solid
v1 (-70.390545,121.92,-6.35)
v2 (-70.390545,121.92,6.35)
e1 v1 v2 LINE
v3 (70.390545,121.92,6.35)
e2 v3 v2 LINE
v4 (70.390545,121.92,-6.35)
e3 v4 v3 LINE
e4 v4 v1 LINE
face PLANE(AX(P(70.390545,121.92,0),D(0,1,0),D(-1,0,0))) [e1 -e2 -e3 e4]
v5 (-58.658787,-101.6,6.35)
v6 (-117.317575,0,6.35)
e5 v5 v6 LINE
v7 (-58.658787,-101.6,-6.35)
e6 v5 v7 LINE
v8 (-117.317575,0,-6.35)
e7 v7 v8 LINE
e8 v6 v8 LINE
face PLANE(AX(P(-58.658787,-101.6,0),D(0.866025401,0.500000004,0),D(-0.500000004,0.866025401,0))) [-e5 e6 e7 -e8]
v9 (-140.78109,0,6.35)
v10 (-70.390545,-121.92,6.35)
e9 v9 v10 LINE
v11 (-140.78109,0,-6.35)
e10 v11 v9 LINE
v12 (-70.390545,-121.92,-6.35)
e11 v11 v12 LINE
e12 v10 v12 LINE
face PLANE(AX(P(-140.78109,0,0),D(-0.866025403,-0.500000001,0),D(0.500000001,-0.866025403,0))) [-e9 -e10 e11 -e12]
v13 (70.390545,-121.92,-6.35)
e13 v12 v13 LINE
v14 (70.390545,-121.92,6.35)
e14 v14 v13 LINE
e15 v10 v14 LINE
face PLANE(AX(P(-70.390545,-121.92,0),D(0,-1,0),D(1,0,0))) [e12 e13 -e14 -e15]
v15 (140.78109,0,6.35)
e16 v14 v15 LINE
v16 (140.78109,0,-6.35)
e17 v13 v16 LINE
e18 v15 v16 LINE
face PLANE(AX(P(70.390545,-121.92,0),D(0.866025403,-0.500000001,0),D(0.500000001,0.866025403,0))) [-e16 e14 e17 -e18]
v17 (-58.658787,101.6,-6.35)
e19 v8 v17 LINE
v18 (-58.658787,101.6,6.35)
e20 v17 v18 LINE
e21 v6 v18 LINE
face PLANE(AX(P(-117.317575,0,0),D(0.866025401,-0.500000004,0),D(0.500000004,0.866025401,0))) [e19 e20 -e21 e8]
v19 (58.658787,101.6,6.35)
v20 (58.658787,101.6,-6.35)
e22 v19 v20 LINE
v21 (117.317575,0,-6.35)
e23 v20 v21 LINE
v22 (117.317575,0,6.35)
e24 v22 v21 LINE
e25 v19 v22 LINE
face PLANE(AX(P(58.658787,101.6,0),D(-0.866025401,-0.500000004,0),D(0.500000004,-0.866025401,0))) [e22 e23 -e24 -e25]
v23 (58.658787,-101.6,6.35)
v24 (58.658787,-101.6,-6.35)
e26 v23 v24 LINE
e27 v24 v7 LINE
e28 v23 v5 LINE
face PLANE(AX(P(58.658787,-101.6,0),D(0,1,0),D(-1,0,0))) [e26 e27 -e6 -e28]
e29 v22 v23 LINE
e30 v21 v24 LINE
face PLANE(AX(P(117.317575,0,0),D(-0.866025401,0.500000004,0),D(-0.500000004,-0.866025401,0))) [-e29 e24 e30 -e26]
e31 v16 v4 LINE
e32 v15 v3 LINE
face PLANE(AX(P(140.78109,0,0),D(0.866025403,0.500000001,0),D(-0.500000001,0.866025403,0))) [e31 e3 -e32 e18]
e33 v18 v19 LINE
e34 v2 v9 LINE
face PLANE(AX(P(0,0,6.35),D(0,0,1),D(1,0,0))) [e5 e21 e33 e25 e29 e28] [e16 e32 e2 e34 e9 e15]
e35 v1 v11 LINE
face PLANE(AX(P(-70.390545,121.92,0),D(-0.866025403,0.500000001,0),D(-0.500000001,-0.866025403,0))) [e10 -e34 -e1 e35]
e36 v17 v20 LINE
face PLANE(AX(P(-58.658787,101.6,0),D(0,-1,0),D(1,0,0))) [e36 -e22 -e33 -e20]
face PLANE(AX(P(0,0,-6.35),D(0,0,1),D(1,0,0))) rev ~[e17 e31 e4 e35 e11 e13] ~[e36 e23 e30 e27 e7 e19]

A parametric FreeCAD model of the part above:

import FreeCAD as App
import Part
import Sketcher
from FreeCAD import Vector
Q = App.Units.Quantity


def add_polygon(sketch, points):
    """Adds a closed chain of lines whose ends are joined by coincident constraints."""
    first, n = sketch.GeometryCount, len(points)
    for a, b in zip(points, points[1:] + points[:1]):
        sketch.addGeometry(Part.LineSegment(App.Vector(*a, 0), App.Vector(*b, 0)), False)
    for i in range(n):
        sketch.addConstraint(Sketcher.Constraint("Coincident", first + i, 2, first + (i + 1) % n, 1))

doc = App.newDocument("Part")
body = doc.addObject("PartDesign::Body", "Body")

# Sketch on XY plane
sketch1 = body.newObject("Sketcher::SketchObject", "Sketch")
sketch1.AttachmentSupport = (doc.getObject("XY_Plane"), [""])
sketch1.MapMode = "FlatFace"
add_polygon(sketch1, [(140.78109, 0), (70.390545, 121.92), (-70.390545, 121.92), (-140.78109, 0), (-70.390545, -121.92), (70.390545, -121.92)])  # lines 0-5
add_polygon(sketch1, [(-117.317575, 0), (-58.658787, 101.6), (58.658787, 101.6), (117.317575, 0), (58.658787, -101.6), (-58.658787, -101.6)])  # lines 6-11
sketch1.addConstraint([
    Sketcher.Constraint("Horizontal", 1),
    Sketcher.Constraint("Horizontal", 4),
    Sketcher.Constraint("Horizontal", 7),
    Sketcher.Constraint("Horizontal", 10),
    Sketcher.Constraint("Symmetric", 0, 2, 3, 2, -1, 1),
    Sketcher.Constraint("Symmetric", 2, 2, 5, 2, -1, 1),
    Sketcher.Constraint("Symmetric", 6, 2, 9, 2, -1, 1),
    Sketcher.Constraint("Symmetric", 8, 2, 11, 2, -1, 1),
    Sketcher.Constraint("PointOnObject", 2, 2, -1),
    Sketcher.Constraint("PointOnObject", 8, 2, -1),
    Sketcher.Constraint("Parallel", 2, 5),
    Sketcher.Constraint("Parallel", 5, 6),
    Sketcher.Constraint("Parallel", 3, 8),
    Sketcher.Constraint("Parallel", 8, 11),
    Sketcher.Constraint("Vertical", 1, 2, 3, 2),
    Sketcher.Constraint("DistanceY", -1, 1, 6, 2, Q("4 in")),
    Sketcher.Constraint("Angle", 0, Q("120 deg")),
    Sketcher.Constraint("DistanceY", -1, 1, 0, 2, Q("4.8 in")),
    Sketcher.Constraint("DistanceX", 1, 2, 1, 1, 140.78109),
    Sketcher.Constraint("DistanceX", 7, 1, 7, 2, 117.317574),
])
pad1 = body.newObject("PartDesign::Pad", "Pad")
pad1.Profile = sketch1
pad1.Length = Q("0.5 in")
pad1.Midplane = True

doc.recompute()
